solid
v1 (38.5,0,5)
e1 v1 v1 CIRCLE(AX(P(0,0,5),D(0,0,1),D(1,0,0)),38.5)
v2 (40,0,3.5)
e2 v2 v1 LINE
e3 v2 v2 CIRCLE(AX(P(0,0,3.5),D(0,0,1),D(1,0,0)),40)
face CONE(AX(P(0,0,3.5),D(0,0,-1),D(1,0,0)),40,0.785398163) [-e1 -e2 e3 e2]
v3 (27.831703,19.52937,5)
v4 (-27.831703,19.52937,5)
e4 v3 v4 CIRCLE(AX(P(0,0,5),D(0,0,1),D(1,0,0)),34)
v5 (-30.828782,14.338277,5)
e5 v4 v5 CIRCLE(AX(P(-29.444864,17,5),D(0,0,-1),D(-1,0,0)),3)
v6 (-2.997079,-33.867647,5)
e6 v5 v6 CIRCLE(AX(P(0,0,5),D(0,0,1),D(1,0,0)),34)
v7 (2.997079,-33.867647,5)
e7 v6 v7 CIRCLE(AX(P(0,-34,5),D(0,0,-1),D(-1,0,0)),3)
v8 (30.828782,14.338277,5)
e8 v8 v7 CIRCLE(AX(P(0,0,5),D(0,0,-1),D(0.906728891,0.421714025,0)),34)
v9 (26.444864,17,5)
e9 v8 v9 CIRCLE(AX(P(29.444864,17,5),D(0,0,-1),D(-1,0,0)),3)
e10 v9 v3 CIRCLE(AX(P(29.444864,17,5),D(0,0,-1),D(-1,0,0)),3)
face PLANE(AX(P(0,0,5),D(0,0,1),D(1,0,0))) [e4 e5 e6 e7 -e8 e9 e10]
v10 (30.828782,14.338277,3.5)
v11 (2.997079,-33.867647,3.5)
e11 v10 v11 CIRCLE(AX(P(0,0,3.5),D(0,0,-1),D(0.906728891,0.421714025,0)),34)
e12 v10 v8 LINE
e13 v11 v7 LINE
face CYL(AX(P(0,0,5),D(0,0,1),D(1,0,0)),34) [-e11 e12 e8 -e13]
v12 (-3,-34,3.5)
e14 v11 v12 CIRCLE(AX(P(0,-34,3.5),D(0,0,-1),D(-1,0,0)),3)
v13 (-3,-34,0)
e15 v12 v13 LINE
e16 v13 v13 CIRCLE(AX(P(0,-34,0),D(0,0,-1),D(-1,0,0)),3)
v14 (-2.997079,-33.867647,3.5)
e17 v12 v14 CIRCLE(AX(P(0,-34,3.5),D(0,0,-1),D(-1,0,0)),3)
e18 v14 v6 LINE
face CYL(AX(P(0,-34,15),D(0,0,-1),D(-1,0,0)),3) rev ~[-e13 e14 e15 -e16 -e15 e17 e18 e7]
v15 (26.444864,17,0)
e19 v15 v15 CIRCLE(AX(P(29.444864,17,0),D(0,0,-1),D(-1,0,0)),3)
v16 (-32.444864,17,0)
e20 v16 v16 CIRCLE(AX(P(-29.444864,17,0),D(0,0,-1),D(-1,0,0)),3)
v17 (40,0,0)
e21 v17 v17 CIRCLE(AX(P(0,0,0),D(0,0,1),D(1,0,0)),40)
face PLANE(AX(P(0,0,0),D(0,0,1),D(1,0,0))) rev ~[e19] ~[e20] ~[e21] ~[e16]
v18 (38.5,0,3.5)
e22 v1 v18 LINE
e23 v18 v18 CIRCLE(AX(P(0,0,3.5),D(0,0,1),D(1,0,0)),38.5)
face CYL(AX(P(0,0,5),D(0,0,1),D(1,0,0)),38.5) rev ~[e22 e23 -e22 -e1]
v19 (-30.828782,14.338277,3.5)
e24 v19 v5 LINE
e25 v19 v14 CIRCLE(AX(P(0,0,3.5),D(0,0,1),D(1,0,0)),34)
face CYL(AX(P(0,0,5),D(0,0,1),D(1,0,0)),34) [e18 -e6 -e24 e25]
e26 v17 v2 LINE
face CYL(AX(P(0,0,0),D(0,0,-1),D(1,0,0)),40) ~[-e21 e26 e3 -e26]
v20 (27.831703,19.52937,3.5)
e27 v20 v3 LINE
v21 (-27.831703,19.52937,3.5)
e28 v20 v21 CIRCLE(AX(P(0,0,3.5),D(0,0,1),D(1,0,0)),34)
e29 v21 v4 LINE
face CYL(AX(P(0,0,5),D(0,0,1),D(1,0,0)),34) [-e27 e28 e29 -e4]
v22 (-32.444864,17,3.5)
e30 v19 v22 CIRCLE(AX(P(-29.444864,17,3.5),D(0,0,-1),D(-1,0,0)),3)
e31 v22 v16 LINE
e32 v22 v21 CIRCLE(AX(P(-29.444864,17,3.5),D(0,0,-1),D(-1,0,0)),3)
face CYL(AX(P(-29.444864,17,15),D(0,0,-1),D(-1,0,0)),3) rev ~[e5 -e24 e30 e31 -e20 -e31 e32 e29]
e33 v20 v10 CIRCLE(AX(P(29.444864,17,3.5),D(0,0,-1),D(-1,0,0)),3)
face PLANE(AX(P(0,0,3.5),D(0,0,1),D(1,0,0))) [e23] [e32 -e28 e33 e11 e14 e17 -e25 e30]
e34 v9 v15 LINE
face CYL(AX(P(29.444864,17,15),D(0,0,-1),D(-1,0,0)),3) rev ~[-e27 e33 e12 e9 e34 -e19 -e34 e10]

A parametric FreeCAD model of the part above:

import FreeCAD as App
import Part
import Sketcher

V = App.Vector
Q = App.Units.Quantity


def edges_at(feature, points):
    """Names of the edges that pass closest to the given points."""
    edges = feature.Shape.Edges
    near = lambda p: min(range(len(edges)), key=lambda i: edges[i].distToShape(Part.Vertex(*p))[0])
    return sorted({f"Edge{near(p) + 1}" for p in points})

doc = App.newDocument("Part")
body = doc.addObject("PartDesign::Body", "Body")

sketch1 = doc.addObject("Sketcher::SketchObject", "Sketch")
body.addObject(sketch1)
sketch1.AttachmentSupport = (doc.XY_Plane, [""])
sketch1.MapMode = "FlatFace"
sketch1.addGeometry(Part.Circle(V(0, 0, 0), V(0, 0, 1), 40), False)
sketch1.addConstraint([
    Sketcher.Constraint("Coincident", 0, 3, -1, 1),
    Sketcher.Constraint("Diameter", 0, Q("80 mm")),
])
pad1 = doc.addObject("PartDesign::Pad", "Pad")
body.addObject(pad1)
pad1.Profile = sketch1
pad1.Length = 5
doc.recompute()

chamfer = doc.addObject("PartDesign::Chamfer", "Chamfer")
body.addObject(chamfer)
chamfer.Base = (pad1, edges_at(pad1, [(-40, 0, 5)]))
chamfer.Size = 1.5

sketch2 = doc.addObject("Sketcher::SketchObject", "Sketch001")
body.addObject(sketch2)
sketch2.AttachmentSupport = (doc.XY_Plane, [""])
sketch2.MapMode = "FlatFace"
sketch2.AttachmentOffset = App.Placement(V(0, 0, 5), App.Rotation())
sketch2.addGeometry([
    Part.Circle(V(0, 0, 0), V(0, 0, 1), 38),
    Part.Circle(V(0, 0, 0), V(0, 0, 1), 34),
], False)
sketch2.addConstraint([
    Sketcher.Constraint("Coincident", 0, 3, -1, 1),
    Sketcher.Constraint("Coincident", 1, 3, -1, 1),
    Sketcher.Constraint("Diameter", 0, Q("77 mm")),
    Sketcher.Constraint("Diameter", 1, Q("68 mm")),
])
pocket1 = doc.addObject("PartDesign::Pocket", "Pocket")
body.addObject(pocket1)
pocket1.Profile = sketch2
pocket1.Length = 1.5

sketch3 = doc.addObject("Sketcher::SketchObject", "Sketch002")
body.addObject(sketch3)
sketch3.AttachmentSupport = (doc.XY_Plane, [""])
sketch3.MapMode = "FlatFace"
sketch3.AttachmentOffset = App.Placement(V(0, 0, 5), App.Rotation())
sketch3.addGeometry([
    Part.Circle(V(29.4, 17, 0), V(0, 0, 1), 3),
    Part.Circle(V(0, -34, 0), V(0, 0, 1), 3),
    Part.Circle(V(-29.4, 17, 0), V(0, 0, 1), 3),
], False)
sketch3.addConstraint([
    Sketcher.Constraint("Equal", 0, 1),
    Sketcher.Constraint("Equal", 1, 2),
    Sketcher.Constraint("Symmetric", 0, 3, 2, 3, -2),
    Sketcher.Constraint("PointOnObject", 1, 3, -2),
    Sketcher.Constraint("Diameter", 0, Q("6 mm")),
    Sketcher.Constraint("DistanceY", -1, 1, 0, 3, Q("17 mm")),
    Sketcher.Constraint("DistanceY", 1, 3, -1, 1, Q("34 mm")),
    Sketcher.Constraint("DistanceX", -1, 1, 0, 3, Q("29.444864 mm")),
])
doc.recompute()
hole = doc.addObject("PartDesign::Hole", "Hole")
body.addObject(hole)
hole.Profile = sketch3
hole.ThreadType = "None"
hole.Diameter = 6
hole.DepthType = "Dimension"
hole.Depth = 10
hole.DrillPoint = "Flat"

doc.recompute()
